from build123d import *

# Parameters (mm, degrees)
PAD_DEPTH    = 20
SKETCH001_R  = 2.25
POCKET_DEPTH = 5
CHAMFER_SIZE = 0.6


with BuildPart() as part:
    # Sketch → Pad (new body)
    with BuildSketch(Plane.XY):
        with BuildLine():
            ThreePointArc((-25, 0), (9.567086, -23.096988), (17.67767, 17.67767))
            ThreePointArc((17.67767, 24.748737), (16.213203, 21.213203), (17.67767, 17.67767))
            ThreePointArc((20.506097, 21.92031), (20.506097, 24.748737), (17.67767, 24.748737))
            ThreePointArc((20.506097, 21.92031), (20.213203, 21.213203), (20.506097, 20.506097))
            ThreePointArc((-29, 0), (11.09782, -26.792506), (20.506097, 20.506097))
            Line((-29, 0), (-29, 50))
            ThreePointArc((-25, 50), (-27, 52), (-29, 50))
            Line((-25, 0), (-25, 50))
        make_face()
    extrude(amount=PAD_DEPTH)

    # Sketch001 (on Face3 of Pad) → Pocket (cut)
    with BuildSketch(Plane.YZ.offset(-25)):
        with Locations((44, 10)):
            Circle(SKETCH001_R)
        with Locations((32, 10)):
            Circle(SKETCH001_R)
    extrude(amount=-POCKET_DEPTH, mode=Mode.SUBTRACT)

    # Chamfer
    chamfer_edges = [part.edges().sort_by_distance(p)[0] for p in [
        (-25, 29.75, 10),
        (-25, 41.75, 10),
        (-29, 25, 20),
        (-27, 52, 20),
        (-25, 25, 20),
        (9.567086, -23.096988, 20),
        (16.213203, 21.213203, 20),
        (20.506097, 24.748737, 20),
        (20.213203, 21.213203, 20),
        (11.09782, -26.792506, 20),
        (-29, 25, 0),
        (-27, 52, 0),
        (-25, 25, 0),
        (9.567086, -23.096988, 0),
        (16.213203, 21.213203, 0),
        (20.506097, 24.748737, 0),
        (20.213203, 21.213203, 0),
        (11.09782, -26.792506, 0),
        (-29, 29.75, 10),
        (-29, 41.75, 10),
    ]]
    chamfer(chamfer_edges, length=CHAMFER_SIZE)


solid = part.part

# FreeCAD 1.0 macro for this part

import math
import FreeCAD as App
import Part
import Sketcher

V = App.Vector
Q = App.Units.Quantity


def edges_at(feature, points):
    """Names of the edges that pass closest to the given points."""
    edges = feature.Shape.Edges
    near = lambda p: min(range(len(edges)), key=lambda i: edges[i].distToShape(Part.Vertex(*p))[0])
    return sorted({f"Edge{near(p) + 1}" for p in points})

doc = App.newDocument("Part")
params = doc.addObject("Spreadsheet::Sheet", "Params")
for row, (alias, value) in enumerate([
    ("sketch1_radius", "25 mm"),
    ("sketch1_radius2", "2 mm"),
    ("sketch1_height", "50 mm"),
    ("pad1_length", "20 mm"),
    ("sketch2_diameter", "4.5 mm"),
    ("pocket1_length", "5 mm"),
    ("chamfer_size", "0.6 mm"),
], start=1):
    params.set(f"A{row}", alias)
    params.set(f"B{row}", "=" + value)
    params.setAlias(f"B{row}", alias)

body = doc.addObject("PartDesign::Body", "Body")

sketch1 = doc.addObject("Sketcher::SketchObject", "Sketch")
body.addObject(sketch1)
sketch1.AttachmentSupport = (doc.XY_Plane, [""])
sketch1.MapMode = "FlatFace"
sketch1.addGeometry([
    Part.ArcOfCircle(Part.Circle(V(0, 0, 0), V(0, 0, 1), 25), math.radians(-180), math.radians(45)),
    Part.LineSegment(V(-25, 0, 0), V(-25, 50, 0)),
    Part.ArcOfCircle(Part.Circle(V(-27, 50, 0), V(0, 0, 1), 2), math.radians(0), math.radians(180)),
    Part.LineSegment(V(-29, 50, 0), V(-29, 0, 0)),
    Part.ArcOfCircle(Part.Circle(V(0, 0, 0), V(0, 0, 1), 29), math.radians(-180), math.radians(45)),
    Part.ArcOfCircle(Part.Circle(V(21.2, 21.2, 0), V(0, 0, 1), 1), math.radians(135), math.radians(225)),
    Part.ArcOfCircle(Part.Circle(V(19.1, 23.3, 0), V(0, 0, 1), 2), math.radians(-45), math.radians(135)),
    Part.ArcOfCircle(Part.Circle(V(21.2, 21.2, 0), V(0, 0, 1), 5), math.radians(135), math.radians(225)),
], False)
sketch1.addConstraint([
    Sketcher.Constraint("Tangent", 0, 1, 1, 1),
    Sketcher.Constraint("Tangent", 1, 2, 2, 1),
    Sketcher.Constraint("Tangent", 2, 2, 3, 1),
    Sketcher.Constraint("Tangent", 3, 2, 4, 1),
    Sketcher.Constraint("Coincident", 4, 2, 5, 2),
    Sketcher.Constraint("Coincident", 5, 1, 6, 1),
    Sketcher.Constraint("Tangent", 6, 2, 7, 1),
    Sketcher.Constraint("Tangent", 7, 2, 0, 2),
    Sketcher.Constraint("Vertical", 1),
    Sketcher.Constraint("Vertical", 3),
    Sketcher.Constraint("Coincident", 0, 3, -1, 1),
    Sketcher.Constraint("Coincident", 4, 3, -1, 1),
    Sketcher.Constraint("Coincident", 7, 3, 5, 3),
    Sketcher.Constraint("Vertical", 4, 2, 5, 1),
    Sketcher.Constraint("Vertical", 6, 2, 7, 2),
    Sketcher.Constraint("Radius", 0, Q("25 mm")),
    Sketcher.Constraint("Radius", 2, Q("2 mm")),
    Sketcher.Constraint("DistanceY", 1, 1, 1, 2, Q("50 mm")),
    Sketcher.Constraint("Radius", 5, Q("0.999997 mm")),
    Sketcher.Constraint("DistanceX", -1, 1, 5, 3, Q("21.2132 mm")),
    Sketcher.Constraint("DistanceY", -1, 1, 5, 1, Q("21.92031 mm")),
])
sketch1.setExpression("Constraints[15]", "Params.sketch1_radius")
sketch1.setExpression("Constraints[16]", "Params.sketch1_radius2")
sketch1.setExpression("Constraints[17]", "Params.sketch1_height")
pad1 = doc.addObject("PartDesign::Pad", "Pad")
body.addObject(pad1)
pad1.Profile = sketch1
pad1.setExpression("Length", "Params.pad1_length")

sketch2 = doc.addObject("Sketcher::SketchObject", "Sketch001")
body.addObject(sketch2)
sketch2.AttachmentSupport = (doc.YZ_Plane, [""])
sketch2.MapMode = "FlatFace"
sketch2.AttachmentOffset = App.Placement(V(0, 0, -25), App.Rotation())
sketch2.addGeometry([
    Part.Circle(V(44, 10, 0), V(0, 0, 1), 2.2),
    Part.Circle(V(32, 10, 0), V(0, 0, 1), 2.2),
], False)
sketch2.addConstraint([
    Sketcher.Constraint("Equal", 0, 1),
    Sketcher.Constraint("Horizontal", 0, 3, 1, 3),
    Sketcher.Constraint("Diameter", 0, Q("4.5 mm")),
    Sketcher.Constraint("DistanceX", -1, 1, 0, 3, Q("44 mm")),
    Sketcher.Constraint("DistanceY", -1, 1, 0, 3, Q("10 mm")),
    Sketcher.Constraint("DistanceX", -1, 1, 1, 3, Q("32 mm")),
])
sketch2.setExpression("Constraints[2]", "Params.sketch2_diameter")
pocket1 = doc.addObject("PartDesign::Pocket", "Pocket")
body.addObject(pocket1)
pocket1.Profile = sketch2
pocket1.setExpression("Length", "Params.pocket1_length")
doc.recompute()

chamfer = doc.addObject("PartDesign::Chamfer", "Chamfer")
body.addObject(chamfer)
chamfer.Base = (pocket1, edges_at(pocket1, [
    (-25, 29.75, 10),
    (-25, 41.75, 10),
    (-29, 25, 20),
    (-27, 52, 20),
    (-25, 25, 20),
    (9.567, -23.097, 20),
    (16.213, 21.213, 20),
    (20.506, 24.749, 20),
    (20.213, 21.213, 20),
    (11.098, -26.793, 20),
    (-29, 25, 0),
    (-27, 52, 0),
    (-25, 25, 0),
    (9.567, -23.097, 0),
    (16.213, 21.213, 0),
    (20.506, 24.749, 0),
    (20.213, 21.213, 0),
    (11.098, -26.793, 0),
    (-29, 29.75, 10),
    (-29, 41.75, 10),
]))
chamfer.setExpression("Size", "Params.chamfer_size")

doc.recompute()
